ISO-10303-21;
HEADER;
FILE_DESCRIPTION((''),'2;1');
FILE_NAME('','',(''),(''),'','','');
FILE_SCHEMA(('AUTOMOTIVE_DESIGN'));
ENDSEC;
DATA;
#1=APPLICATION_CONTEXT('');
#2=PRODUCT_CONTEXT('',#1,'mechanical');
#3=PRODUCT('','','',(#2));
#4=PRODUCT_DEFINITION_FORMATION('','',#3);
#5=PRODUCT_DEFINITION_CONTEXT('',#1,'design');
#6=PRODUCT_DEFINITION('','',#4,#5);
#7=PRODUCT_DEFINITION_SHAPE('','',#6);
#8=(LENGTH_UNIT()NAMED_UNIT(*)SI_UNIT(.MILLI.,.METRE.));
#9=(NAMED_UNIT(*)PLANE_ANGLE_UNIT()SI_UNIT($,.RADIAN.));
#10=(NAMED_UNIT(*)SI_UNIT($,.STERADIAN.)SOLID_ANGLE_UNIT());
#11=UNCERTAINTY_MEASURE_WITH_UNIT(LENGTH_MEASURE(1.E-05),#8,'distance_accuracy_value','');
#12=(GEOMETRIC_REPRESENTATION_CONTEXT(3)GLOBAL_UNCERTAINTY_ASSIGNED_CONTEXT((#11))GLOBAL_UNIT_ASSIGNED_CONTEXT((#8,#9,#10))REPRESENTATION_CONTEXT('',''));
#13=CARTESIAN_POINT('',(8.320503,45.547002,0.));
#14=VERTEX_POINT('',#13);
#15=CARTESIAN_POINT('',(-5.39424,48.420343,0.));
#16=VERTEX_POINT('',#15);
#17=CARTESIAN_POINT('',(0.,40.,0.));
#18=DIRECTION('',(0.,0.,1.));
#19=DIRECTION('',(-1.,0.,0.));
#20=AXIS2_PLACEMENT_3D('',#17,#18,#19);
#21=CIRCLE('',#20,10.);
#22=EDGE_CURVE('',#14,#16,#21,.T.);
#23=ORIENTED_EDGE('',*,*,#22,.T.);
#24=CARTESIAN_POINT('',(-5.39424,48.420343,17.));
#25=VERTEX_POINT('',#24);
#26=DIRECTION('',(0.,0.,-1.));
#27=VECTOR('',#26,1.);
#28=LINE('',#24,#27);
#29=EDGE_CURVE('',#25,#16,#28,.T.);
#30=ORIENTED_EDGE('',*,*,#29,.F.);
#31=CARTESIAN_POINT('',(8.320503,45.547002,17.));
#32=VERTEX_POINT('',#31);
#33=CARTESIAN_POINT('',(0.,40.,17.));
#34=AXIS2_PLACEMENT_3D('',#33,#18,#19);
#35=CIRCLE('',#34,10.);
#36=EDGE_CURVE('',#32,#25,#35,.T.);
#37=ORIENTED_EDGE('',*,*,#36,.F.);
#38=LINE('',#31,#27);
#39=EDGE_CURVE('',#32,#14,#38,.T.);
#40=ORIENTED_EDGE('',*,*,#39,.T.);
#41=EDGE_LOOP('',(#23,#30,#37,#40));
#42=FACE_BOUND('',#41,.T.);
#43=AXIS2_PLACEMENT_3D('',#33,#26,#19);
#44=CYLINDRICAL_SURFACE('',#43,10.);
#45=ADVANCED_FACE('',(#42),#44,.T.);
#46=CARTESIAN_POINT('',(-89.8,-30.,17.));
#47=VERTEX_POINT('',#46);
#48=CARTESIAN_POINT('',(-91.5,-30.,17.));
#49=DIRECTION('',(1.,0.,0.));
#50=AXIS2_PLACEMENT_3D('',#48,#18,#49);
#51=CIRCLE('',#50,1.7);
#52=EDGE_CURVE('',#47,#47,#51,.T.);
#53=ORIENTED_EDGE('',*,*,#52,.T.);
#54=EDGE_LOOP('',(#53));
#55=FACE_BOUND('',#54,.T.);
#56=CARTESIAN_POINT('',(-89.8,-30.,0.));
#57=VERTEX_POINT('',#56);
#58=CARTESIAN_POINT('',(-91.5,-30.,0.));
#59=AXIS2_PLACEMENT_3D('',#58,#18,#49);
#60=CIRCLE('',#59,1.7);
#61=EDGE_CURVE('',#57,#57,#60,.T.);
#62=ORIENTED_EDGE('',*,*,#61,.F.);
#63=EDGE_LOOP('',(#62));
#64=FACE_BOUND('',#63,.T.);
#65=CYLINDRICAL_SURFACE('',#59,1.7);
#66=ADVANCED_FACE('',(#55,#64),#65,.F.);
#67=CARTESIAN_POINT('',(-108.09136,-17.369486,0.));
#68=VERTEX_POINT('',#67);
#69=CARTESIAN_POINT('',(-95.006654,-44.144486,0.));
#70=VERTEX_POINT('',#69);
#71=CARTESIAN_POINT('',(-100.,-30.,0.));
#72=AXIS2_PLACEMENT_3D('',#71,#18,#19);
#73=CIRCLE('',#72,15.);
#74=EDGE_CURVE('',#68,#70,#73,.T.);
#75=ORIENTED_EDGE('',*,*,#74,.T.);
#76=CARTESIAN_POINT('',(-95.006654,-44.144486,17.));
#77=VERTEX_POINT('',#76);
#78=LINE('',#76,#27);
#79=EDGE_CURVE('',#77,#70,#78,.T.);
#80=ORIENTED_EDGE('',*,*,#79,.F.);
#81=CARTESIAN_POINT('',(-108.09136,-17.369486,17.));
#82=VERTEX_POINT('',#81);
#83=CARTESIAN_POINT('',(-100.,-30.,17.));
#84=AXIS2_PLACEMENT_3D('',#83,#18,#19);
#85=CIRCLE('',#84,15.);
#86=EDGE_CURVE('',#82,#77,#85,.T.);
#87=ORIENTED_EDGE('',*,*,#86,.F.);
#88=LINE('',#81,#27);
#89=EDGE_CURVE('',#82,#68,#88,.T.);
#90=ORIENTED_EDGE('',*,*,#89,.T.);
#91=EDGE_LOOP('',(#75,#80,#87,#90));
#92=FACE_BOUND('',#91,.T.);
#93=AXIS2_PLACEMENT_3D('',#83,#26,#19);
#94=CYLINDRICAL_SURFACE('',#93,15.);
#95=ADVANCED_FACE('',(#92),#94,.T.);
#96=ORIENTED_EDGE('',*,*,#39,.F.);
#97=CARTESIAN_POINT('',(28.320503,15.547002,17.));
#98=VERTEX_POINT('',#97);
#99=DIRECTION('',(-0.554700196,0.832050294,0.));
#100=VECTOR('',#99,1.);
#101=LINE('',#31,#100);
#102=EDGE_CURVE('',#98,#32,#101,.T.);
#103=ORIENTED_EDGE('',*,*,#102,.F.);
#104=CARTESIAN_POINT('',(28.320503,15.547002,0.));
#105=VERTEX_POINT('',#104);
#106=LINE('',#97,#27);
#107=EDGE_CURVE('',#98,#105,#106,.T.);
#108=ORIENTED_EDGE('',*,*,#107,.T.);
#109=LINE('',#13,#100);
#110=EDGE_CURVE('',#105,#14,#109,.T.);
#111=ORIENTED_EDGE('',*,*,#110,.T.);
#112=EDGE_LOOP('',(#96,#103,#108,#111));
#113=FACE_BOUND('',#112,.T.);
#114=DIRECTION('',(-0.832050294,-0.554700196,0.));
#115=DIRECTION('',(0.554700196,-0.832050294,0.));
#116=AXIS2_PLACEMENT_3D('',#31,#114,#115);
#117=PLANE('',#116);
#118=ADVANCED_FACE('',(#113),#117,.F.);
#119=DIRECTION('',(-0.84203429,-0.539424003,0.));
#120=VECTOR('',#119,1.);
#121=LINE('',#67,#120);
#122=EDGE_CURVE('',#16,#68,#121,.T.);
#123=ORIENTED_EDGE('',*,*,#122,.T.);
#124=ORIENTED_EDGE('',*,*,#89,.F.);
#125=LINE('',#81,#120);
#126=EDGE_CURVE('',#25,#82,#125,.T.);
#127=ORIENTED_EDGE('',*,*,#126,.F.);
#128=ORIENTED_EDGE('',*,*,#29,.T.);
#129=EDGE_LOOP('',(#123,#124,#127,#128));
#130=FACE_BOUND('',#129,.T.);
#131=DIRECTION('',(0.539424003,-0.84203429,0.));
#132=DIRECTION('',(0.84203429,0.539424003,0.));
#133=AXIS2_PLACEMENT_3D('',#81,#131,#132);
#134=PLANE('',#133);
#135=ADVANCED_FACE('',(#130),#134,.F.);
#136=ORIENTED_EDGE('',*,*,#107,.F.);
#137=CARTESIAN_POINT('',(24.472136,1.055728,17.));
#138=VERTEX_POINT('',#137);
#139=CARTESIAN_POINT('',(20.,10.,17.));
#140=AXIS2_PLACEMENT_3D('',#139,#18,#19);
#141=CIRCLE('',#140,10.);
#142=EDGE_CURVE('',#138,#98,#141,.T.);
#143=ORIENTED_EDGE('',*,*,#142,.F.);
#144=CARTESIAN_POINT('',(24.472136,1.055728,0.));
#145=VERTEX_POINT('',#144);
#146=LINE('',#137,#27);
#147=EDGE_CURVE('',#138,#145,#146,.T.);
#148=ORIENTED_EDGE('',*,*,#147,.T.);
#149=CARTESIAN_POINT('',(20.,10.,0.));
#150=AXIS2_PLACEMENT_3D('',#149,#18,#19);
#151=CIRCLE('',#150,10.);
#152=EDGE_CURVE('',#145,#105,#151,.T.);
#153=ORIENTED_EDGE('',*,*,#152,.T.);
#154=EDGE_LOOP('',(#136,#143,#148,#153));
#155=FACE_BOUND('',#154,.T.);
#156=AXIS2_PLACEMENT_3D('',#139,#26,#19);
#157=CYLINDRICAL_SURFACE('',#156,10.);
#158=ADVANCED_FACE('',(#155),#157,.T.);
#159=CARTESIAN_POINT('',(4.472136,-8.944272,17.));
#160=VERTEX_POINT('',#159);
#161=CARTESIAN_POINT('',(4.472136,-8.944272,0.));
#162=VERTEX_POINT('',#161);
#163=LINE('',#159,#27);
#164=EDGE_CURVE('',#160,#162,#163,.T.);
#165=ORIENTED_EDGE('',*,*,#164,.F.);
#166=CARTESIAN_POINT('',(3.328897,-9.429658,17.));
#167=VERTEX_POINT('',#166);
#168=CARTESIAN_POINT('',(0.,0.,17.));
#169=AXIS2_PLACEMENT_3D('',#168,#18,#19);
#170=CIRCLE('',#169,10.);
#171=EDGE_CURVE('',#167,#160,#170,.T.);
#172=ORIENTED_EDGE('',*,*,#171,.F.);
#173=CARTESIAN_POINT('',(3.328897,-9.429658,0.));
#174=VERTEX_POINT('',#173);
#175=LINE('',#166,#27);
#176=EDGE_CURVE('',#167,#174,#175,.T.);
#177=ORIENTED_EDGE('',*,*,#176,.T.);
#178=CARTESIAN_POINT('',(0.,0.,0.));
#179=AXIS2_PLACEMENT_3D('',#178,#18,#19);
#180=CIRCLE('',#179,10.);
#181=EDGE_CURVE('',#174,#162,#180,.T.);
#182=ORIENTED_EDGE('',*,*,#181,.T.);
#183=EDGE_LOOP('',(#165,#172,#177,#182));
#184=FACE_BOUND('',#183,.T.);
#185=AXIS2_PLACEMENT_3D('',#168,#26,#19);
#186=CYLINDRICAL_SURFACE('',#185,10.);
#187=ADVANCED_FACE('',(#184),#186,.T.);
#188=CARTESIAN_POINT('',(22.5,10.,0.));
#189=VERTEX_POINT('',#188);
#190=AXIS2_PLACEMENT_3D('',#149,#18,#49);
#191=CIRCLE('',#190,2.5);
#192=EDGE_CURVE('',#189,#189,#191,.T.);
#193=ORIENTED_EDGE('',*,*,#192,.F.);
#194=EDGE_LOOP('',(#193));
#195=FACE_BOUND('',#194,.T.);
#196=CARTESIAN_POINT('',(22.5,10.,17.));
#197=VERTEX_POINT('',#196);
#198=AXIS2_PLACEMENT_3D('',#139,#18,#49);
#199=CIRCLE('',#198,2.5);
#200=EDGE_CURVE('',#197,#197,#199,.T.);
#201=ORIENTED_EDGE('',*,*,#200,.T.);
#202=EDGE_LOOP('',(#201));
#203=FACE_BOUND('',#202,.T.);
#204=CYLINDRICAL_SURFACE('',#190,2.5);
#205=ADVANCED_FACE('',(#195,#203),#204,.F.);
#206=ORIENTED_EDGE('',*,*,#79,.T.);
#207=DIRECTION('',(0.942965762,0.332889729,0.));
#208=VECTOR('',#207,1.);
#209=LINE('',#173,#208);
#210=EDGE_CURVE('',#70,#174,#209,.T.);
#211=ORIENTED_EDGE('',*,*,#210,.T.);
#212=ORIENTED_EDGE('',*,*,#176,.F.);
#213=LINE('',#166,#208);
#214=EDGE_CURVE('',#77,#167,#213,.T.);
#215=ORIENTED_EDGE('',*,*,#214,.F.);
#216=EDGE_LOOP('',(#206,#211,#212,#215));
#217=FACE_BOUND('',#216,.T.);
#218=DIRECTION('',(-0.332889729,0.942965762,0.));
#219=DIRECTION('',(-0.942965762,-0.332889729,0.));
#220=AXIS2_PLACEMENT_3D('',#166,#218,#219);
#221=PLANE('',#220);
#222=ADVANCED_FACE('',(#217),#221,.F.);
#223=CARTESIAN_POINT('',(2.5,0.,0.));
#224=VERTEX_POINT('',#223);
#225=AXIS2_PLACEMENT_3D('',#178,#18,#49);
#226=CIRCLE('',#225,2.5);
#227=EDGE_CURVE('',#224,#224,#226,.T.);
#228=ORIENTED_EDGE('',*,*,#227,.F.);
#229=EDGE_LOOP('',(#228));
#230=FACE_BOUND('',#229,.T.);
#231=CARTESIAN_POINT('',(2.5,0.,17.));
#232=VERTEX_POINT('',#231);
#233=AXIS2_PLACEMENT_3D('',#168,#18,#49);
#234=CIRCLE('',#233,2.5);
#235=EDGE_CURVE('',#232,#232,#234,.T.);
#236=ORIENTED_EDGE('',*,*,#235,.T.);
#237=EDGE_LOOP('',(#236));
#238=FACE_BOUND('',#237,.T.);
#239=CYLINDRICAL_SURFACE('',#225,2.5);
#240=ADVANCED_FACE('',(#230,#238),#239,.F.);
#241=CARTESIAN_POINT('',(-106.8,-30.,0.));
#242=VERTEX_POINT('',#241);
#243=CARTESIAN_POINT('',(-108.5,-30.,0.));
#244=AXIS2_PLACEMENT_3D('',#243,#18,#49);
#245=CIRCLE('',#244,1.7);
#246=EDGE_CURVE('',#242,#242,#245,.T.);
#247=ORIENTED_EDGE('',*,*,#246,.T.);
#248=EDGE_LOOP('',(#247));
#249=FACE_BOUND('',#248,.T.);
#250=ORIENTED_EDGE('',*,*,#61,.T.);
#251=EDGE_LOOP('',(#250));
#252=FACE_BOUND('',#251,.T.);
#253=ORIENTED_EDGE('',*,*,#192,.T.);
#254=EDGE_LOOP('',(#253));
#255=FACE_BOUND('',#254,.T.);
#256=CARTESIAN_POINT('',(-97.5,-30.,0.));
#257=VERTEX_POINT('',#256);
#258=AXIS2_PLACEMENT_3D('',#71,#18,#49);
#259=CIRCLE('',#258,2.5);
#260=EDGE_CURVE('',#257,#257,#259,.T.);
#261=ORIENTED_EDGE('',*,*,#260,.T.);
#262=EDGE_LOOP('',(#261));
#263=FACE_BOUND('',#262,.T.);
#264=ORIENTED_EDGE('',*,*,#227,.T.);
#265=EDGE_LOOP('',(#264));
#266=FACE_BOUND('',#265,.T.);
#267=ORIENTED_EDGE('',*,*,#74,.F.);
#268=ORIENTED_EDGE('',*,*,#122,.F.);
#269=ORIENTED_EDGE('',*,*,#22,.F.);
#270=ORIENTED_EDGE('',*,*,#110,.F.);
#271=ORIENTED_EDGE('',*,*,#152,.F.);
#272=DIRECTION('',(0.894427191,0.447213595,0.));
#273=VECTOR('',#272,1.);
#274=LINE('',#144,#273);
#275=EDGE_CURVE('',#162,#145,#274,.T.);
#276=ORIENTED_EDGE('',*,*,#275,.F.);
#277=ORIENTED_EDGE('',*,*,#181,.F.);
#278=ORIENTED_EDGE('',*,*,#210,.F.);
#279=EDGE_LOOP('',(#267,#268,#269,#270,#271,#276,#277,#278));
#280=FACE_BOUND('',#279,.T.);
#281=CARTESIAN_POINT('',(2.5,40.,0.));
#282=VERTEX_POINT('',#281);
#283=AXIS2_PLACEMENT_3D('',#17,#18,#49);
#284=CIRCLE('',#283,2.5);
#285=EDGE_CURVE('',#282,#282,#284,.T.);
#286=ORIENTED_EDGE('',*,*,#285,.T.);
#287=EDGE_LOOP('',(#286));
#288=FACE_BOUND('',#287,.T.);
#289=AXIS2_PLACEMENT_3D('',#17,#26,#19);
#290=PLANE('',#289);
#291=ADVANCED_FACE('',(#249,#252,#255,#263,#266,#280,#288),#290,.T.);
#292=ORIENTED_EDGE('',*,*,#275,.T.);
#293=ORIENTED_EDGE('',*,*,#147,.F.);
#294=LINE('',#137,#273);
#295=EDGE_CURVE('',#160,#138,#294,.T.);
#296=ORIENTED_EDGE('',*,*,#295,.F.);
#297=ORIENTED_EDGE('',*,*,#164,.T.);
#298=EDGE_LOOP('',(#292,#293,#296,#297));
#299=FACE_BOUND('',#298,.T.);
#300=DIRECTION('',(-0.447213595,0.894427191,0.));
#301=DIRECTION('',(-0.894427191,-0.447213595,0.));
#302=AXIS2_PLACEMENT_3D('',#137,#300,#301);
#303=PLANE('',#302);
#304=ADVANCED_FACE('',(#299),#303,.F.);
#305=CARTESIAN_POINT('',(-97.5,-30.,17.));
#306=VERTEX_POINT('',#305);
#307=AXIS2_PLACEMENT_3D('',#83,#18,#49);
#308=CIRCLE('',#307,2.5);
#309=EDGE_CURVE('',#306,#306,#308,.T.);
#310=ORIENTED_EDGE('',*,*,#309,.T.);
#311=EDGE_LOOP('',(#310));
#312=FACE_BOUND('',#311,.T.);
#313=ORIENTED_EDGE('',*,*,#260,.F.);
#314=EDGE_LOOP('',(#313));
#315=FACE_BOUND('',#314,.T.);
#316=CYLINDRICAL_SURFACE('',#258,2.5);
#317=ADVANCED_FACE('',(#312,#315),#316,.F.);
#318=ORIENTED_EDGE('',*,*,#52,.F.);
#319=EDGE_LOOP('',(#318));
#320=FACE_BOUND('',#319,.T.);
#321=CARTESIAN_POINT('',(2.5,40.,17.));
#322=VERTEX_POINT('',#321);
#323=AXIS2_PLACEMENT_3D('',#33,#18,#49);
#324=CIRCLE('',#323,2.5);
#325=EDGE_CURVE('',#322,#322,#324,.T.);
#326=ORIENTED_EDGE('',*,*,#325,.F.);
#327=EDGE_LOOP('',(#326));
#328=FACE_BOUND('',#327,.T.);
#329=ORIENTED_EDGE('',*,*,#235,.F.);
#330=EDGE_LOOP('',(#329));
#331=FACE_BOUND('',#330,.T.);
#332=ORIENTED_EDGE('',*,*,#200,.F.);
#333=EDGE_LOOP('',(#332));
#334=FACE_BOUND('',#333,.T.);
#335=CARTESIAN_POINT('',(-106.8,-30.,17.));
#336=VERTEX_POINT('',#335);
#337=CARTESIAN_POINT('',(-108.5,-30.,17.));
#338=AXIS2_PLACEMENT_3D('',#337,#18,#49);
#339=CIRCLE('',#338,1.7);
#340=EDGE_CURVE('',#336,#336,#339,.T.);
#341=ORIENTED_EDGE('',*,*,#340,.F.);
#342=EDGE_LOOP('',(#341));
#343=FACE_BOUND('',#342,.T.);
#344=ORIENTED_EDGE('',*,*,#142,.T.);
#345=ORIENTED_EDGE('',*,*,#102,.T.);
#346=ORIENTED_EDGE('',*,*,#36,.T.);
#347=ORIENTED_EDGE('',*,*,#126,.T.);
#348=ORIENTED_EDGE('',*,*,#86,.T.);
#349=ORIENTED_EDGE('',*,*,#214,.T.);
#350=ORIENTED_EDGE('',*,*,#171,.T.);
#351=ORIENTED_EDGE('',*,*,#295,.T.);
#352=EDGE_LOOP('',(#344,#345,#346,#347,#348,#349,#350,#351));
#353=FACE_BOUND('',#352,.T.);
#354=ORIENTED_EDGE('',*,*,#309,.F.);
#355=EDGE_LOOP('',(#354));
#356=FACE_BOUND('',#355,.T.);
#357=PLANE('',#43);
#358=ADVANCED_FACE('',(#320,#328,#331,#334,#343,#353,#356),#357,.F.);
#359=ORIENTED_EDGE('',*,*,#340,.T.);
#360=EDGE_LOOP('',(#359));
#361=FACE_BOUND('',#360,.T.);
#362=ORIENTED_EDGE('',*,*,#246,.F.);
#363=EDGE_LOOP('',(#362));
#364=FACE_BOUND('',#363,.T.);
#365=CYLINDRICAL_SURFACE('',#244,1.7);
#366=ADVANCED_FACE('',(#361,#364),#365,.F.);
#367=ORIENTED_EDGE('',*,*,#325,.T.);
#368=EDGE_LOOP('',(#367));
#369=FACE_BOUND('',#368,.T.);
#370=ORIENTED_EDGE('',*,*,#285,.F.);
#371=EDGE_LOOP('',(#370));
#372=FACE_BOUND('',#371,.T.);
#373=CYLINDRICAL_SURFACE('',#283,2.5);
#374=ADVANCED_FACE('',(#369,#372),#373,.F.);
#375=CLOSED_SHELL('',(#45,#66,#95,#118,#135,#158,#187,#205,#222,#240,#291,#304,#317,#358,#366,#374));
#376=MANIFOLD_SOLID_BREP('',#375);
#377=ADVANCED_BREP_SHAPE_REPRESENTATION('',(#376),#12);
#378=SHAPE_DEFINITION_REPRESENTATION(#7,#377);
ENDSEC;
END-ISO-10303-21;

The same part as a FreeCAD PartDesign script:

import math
import FreeCAD as App
import Part
import Sketcher
from FreeCAD import Vector
Q = App.Units.Quantity

doc = App.newDocument("Part")
body = doc.addObject("PartDesign::Body", "Body")

# Sketch on XY plane
sketch1 = body.newObject("Sketcher::SketchObject", "Sketch")
sketch1.AttachmentSupport = (doc.getObject("XY_Plane"), [""])
sketch1.MapMode = "FlatFace"
sketch1.addGeometry([
    Part.LineSegment(Vector(-95, -44.1, 0), Vector(3.3, -9.4, 0)),  # 0
    Part.ArcOfCircle(Part.Circle(Vector(0, 0, 0), Vector(0, 0, 1), 10), math.radians(-70.56), math.radians(-63.43)),  # 1
    Part.LineSegment(Vector(4.5, -8.9, 0), Vector(24.5, 1.1, 0)),  # 2
    Part.ArcOfCircle(Part.Circle(Vector(20, 10, 0), Vector(0, 0, 1), 10), math.radians(-63), math.radians(34)),  # 3
    Part.LineSegment(Vector(28.3, 15.5, 0), Vector(8.3, 45.5, 0)),  # 4
    Part.ArcOfCircle(Part.Circle(Vector(0, 40, 0), Vector(0, 0, 1), 10), math.radians(34), math.radians(123)),  # 5
    Part.LineSegment(Vector(-5.4, 48.4, 0), Vector(-108.1, -17.4, 0)),  # 6
    Part.ArcOfCircle(Part.Circle(Vector(-100, -30, 0), Vector(0, 0, 1), 15), math.radians(123), math.radians(289)),  # 7
], False)
sketch1.addConstraint([
    Sketcher.Constraint("Tangent", 0, 2, 1, 1),
    Sketcher.Constraint("Tangent", 1, 2, 2, 1),
    Sketcher.Constraint("Tangent", 2, 2, 3, 1),
    Sketcher.Constraint("Tangent", 3, 2, 4, 1),
    Sketcher.Constraint("Tangent", 4, 2, 5, 1),
    Sketcher.Constraint("Tangent", 5, 2, 6, 1),
    Sketcher.Constraint("Tangent", 6, 2, 7, 1),
    Sketcher.Constraint("Tangent", 7, 2, 0, 1),
    Sketcher.Constraint("Coincident", 1, 3, -1, 1),
    Sketcher.Constraint("Equal", 1, 3),
    Sketcher.Constraint("Equal", 3, 5),
    Sketcher.Constraint("PointOnObject", 5, 3, -2),
    Sketcher.Constraint("Radius", 1, Q("10 mm")),
    Sketcher.Constraint("Radius", 7, Q("15 mm")),
    Sketcher.Constraint("DistanceX", -1, 1, 3, 3, Q("20 mm")),
    Sketcher.Constraint("DistanceY", -1, 1, 3, 3, Q("10 mm")),
    Sketcher.Constraint("DistanceY", -1, 1, 5, 3, Q("40 mm")),
    Sketcher.Constraint("DistanceX", 7, 3, -1, 1, Q("100 mm")),
    Sketcher.Constraint("DistanceY", 7, 3, -1, 1, Q("30 mm")),
])
pad1 = body.newObject("PartDesign::Pad", "Pad")
pad1.Profile = sketch1
pad1.Length = 17

# Sketch on XY plane
sketch2 = body.newObject("Sketcher::SketchObject", "Sketch001")
sketch2.AttachmentSupport = (doc.getObject("XY_Plane"), [""])
sketch2.MapMode = "FlatFace"
sketch2.AttachmentOffset = App.Placement(Vector(0, 0, 17), App.Rotation())
sketch2.addGeometry([
    Part.Circle(Vector(-100, -30, 0), Vector(0, 0, 1), 2.5),
    Part.Circle(Vector(0, 0, 0), Vector(0, 0, 1), 2.5),
    Part.Circle(Vector(0, 40, 0), Vector(0, 0, 1), 2.5),
    Part.Circle(Vector(20, 10, 0), Vector(0, 0, 1), 2.5),
], False)
sketch2.addConstraint([
    Sketcher.Constraint("Coincident", 1, 3, -1, 1),
    Sketcher.Constraint("Equal", 0, 1),
    Sketcher.Constraint("Equal", 1, 2),
    Sketcher.Constraint("Equal", 2, 3),
    Sketcher.Constraint("PointOnObject", 2, 3, -2),
    Sketcher.Constraint("Diameter", 0, Q("5 mm")),
    Sketcher.Constraint("DistanceX", 0, 3, -1, 1, Q("100 mm")),
    Sketcher.Constraint("DistanceY", 0, 3, -1, 1, Q("30 mm")),
    Sketcher.Constraint("DistanceY", -1, 1, 2, 3, Q("40 mm")),
    Sketcher.Constraint("DistanceX", -1, 1, 3, 3, Q("20 mm")),
    Sketcher.Constraint("DistanceY", -1, 1, 3, 3, Q("10 mm")),
])
pocket1 = body.newObject("PartDesign::Pocket", "Pocket")
pocket1.Profile = sketch2
pocket1.Type = "ThroughAll"

# Sketch on XY plane
sketch3 = body.newObject("Sketcher::SketchObject", "Sketch002")
sketch3.AttachmentSupport = (doc.getObject("XY_Plane"), [""])
sketch3.MapMode = "FlatFace"
sketch3.AttachmentOffset = App.Placement(Vector(0, 0, 17), App.Rotation())
sketch3.addGeometry([
    Part.Circle(Vector(-108.5, -30, 0), Vector(0, 0, 1), 1.7),
    Part.Circle(Vector(-91.5, -30, 0), Vector(0, 0, 1), 1.7),
], False)
sketch3.addConstraint([
    Sketcher.Constraint("Equal", 0, 1),
    Sketcher.Constraint("Horizontal", 0, 3, 1, 3),
    Sketcher.Constraint("Diameter", 0, Q("3.4 mm")),
    Sketcher.Constraint("DistanceY", 0, 3, -1, 1, Q("30 mm")),
    Sketcher.Constraint("DistanceX", 0, 3, 1, 3, Q("17 mm")),
    Sketcher.Constraint("DistanceX", 0, 3, -1, 1, Q("108.5 mm")),
])
pocket2 = body.newObject("PartDesign::Pocket", "Pocket001")
pocket2.Profile = sketch3
pocket2.Type = "ThroughAll"

doc.recompute()
